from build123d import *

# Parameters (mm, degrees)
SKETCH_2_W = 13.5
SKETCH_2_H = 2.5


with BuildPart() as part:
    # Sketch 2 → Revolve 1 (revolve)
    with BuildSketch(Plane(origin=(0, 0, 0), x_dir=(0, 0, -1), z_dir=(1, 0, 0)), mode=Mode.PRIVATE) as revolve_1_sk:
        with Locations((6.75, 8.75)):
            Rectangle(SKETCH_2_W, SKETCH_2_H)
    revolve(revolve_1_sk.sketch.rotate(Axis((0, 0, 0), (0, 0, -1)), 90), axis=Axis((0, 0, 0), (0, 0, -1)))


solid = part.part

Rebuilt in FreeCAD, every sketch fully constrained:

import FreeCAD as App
import Part
import Sketcher
from FreeCAD import Vector
Q = App.Units.Quantity


def add_polygon(sketch, points):
    """Adds a closed chain of lines whose ends are joined by coincident constraints."""
    first, n = sketch.GeometryCount, len(points)
    for a, b in zip(points, points[1:] + points[:1]):
        sketch.addGeometry(Part.LineSegment(App.Vector(*a, 0), App.Vector(*b, 0)), False)
    for i in range(n):
        sketch.addConstraint(Sketcher.Constraint("Coincident", first + i, 2, first + (i + 1) % n, 1))

doc = App.newDocument("Part")
body = doc.addObject("PartDesign::Body", "Body")

# Sketch on YZ plane
sketch1 = body.newObject("Sketcher::SketchObject", "Sketch")
sketch1.AttachmentSupport = (doc.getObject("YZ_Plane"), [""])
sketch1.MapMode = "FlatFace"
add_polygon(sketch1, [(10, 0), (7.5, 0), (7.5, -13.5), (10, -13.5)])  # lines 0-3
sketch1.addConstraint([
    Sketcher.Constraint("Horizontal", 0),
    Sketcher.Constraint("Vertical", 1),
    Sketcher.Constraint("Horizontal", 2),
    Sketcher.Constraint("Vertical", 3),
    Sketcher.Constraint("PointOnObject", 0, 2, -1),
    Sketcher.Constraint("DistanceX", 0, 2, 0, 1, Q("2.5 mm")),
    Sketcher.Constraint("DistanceY", 1, 2, 1, 1, Q("13.5 mm")),
    Sketcher.Constraint("DistanceX", -1, 1, 2, 2, Q("10 mm")),
])
revolution = body.newObject("PartDesign::Revolution", "Revolution")
revolution.Profile = sketch1
revolution.ReferenceAxis = (sketch1, ["V_Axis"])
revolution.Angle = 360

doc.recompute()
